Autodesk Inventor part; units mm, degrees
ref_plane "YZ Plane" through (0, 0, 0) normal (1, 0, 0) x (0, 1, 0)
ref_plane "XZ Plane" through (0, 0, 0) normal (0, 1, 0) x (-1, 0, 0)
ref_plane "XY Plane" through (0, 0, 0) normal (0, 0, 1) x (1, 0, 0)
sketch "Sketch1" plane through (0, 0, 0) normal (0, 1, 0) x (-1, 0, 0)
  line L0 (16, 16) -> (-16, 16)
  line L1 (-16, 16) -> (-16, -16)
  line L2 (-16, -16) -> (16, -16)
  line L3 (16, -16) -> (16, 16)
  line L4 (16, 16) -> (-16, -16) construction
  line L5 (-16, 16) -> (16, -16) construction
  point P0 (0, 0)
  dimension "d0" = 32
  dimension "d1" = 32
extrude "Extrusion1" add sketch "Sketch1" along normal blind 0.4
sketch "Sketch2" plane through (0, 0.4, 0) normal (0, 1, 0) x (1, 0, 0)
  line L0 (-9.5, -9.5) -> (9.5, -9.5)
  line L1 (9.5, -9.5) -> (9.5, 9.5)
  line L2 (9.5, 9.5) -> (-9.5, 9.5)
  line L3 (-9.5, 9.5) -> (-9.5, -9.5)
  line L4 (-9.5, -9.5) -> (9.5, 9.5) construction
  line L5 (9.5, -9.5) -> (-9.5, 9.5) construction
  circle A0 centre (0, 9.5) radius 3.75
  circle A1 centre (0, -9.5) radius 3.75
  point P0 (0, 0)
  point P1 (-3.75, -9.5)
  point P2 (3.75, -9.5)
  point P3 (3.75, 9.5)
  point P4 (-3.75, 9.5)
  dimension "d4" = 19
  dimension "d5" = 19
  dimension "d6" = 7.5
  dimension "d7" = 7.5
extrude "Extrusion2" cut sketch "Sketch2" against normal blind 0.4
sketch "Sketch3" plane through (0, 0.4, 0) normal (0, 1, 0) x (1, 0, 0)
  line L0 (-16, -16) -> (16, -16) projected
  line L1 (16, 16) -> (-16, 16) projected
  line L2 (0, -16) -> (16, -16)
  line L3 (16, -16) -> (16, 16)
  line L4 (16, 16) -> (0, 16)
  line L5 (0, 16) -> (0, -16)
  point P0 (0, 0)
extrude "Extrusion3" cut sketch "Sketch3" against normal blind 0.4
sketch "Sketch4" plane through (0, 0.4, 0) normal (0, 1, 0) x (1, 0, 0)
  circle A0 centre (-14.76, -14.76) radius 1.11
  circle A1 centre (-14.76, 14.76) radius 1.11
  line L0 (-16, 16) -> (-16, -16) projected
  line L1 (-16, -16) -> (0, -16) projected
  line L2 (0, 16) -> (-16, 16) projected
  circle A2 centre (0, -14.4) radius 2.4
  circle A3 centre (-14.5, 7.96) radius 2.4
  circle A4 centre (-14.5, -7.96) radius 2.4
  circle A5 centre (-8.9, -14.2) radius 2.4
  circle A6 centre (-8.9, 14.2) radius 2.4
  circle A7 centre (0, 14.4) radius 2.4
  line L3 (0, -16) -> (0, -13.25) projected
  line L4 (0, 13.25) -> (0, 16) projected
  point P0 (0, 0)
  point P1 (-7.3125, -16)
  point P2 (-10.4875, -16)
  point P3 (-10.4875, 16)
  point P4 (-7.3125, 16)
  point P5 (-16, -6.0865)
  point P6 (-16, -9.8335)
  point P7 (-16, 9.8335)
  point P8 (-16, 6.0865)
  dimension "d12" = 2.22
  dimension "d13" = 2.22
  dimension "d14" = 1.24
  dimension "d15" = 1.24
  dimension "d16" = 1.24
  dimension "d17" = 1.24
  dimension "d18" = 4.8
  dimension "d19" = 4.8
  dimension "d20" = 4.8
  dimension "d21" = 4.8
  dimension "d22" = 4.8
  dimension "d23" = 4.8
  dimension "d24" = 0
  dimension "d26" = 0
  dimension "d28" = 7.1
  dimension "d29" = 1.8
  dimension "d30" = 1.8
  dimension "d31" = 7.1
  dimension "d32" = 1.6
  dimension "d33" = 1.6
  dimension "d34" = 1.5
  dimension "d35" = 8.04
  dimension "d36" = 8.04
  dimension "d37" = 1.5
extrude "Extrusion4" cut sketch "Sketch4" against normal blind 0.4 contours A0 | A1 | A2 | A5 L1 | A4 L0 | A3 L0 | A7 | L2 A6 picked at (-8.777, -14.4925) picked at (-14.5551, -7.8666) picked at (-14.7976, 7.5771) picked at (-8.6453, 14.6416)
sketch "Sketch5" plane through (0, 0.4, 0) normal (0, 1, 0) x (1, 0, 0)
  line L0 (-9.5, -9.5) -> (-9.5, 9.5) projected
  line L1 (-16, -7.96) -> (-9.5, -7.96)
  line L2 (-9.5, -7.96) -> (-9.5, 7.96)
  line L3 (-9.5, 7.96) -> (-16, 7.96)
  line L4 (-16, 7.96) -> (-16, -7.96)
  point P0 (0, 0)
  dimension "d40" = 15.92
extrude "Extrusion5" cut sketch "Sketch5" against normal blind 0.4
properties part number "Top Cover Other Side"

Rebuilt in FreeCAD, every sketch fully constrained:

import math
import FreeCAD as App
import Part
import Sketcher

V = App.Vector


def add_polygon(sketch, points):
    """Adds a closed chain of lines whose ends are joined by coincident constraints."""
    first, n = sketch.GeometryCount, len(points)
    for a, b in zip(points, points[1:] + points[:1]):
        sketch.addGeometry(Part.LineSegment(App.Vector(*a, 0), App.Vector(*b, 0)), False)
    for i in range(n):
        sketch.addConstraint(Sketcher.Constraint("Coincident", first + i, 2, first + (i + 1) % n, 1))

doc = App.newDocument("Part")
body = doc.addObject("PartDesign::Body", "Body")
body.AllowCompound = True

# Sketch on XZ plane
sketch1 = body.newObject("Sketcher::SketchObject", "Sketch")
sketch1.AttachmentSupport = (doc.getObject("XZ_Plane"), [""])
sketch1.MapMode = "FlatFace"
add_polygon(sketch1, [(-16, -16), (-16, 16), (16, 16), (16, -16)])  # lines 0-3
sketch1.addConstraint(Sketcher.Constraint("Vertical", 0))
sketch1.addConstraint(Sketcher.Constraint("Horizontal", 1))
sketch1.addConstraint(Sketcher.Constraint("Vertical", 2))
sketch1.addConstraint(Sketcher.Constraint("Horizontal", 3))
sketch1.addConstraint(Sketcher.Constraint("Symmetric", 0, 2, 2, 2, -1, 1))
sketch1.addConstraint(Sketcher.Constraint("Equal", 3, 0))
sketch1.addConstraint(Sketcher.Constraint("DistanceX", 1, 1, 1, 2, 32.0))
pad1 = body.newObject("PartDesign::Pad", "Pad")
pad1.Profile = sketch1
pad1.Length = 0.4
pad1.Reversed = True

# Sketch on XZ plane
sketch2 = body.newObject("Sketcher::SketchObject", "Sketch001")
sketch2.AttachmentSupport = (doc.getObject("XZ_Plane"), [""])
sketch2.MapMode = "FlatFace"
sketch2.AttachmentOffset = App.Placement(V(0, 0, -0.4), App.Rotation())
sketch2.addGeometry(Part.LineSegment(V(-9.5, 9.5, 0), V(-3.8, 9.5, 0)), False)
sketch2.addGeometry(Part.ArcOfCircle(Part.Circle(V(0, 9.5, 0), V(0, 0, 1), 3.8), math.radians(0), math.radians(180)), False)
sketch2.addGeometry(Part.LineSegment(V(3.8, 9.5, 0), V(9.5, 9.5, 0)), False)
sketch2.addGeometry(Part.LineSegment(V(9.5, 9.5, 0), V(9.5, -9.5, 0)), False)
sketch2.addGeometry(Part.LineSegment(V(9.5, -9.5, 0), V(3.8, -9.5, 0)), False)
sketch2.addGeometry(Part.ArcOfCircle(Part.Circle(V(0, -9.5, 0), V(0, 0, 1), 3.8), math.radians(180), math.radians(360)), False)
sketch2.addGeometry(Part.LineSegment(V(-3.8, -9.5, 0), V(-9.5, -9.5, 0)), False)
sketch2.addGeometry(Part.LineSegment(V(-9.5, -9.5, 0), V(-9.5, 9.5, 0)), False)
sketch2.addConstraint(Sketcher.Constraint("Coincident", 0, 2, 1, 2))
sketch2.addConstraint(Sketcher.Constraint("Coincident", 1, 1, 2, 1))
sketch2.addConstraint(Sketcher.Constraint("Coincident", 2, 2, 3, 1))
sketch2.addConstraint(Sketcher.Constraint("Coincident", 3, 2, 4, 1))
sketch2.addConstraint(Sketcher.Constraint("Coincident", 4, 2, 5, 2))
sketch2.addConstraint(Sketcher.Constraint("Coincident", 5, 1, 6, 1))
sketch2.addConstraint(Sketcher.Constraint("Coincident", 6, 2, 7, 1))
sketch2.addConstraint(Sketcher.Constraint("Coincident", 7, 2, 0, 1))
sketch2.addConstraint(Sketcher.Constraint("Horizontal", 0))
sketch2.addConstraint(Sketcher.Constraint("Horizontal", 2))
sketch2.addConstraint(Sketcher.Constraint("Vertical", 3))
sketch2.addConstraint(Sketcher.Constraint("Horizontal", 4))
sketch2.addConstraint(Sketcher.Constraint("Horizontal", 6))
sketch2.addConstraint(Sketcher.Constraint("Vertical", 7))
sketch2.addConstraint(Sketcher.Constraint("Equal", 1, 5))
sketch2.addConstraint(Sketcher.Constraint("Symmetric", 1, 3, 5, 3, -1, 1))
sketch2.addConstraint(Sketcher.Constraint("Symmetric", 2, 2, 6, 2, -1, 1))
sketch2.addConstraint(Sketcher.Constraint("Symmetric", 0, 2, 1, 1, -2))
sketch2.addConstraint(Sketcher.Constraint("Horizontal", 1, 3, 0, 2))
sketch2.addConstraint(Sketcher.Constraint("Horizontal", 5, 3, 3, 2))
sketch2.addConstraint(Sketcher.Constraint("DistanceY", 3, 2, 3, 1, 19.0))
sketch2.addConstraint(Sketcher.Constraint("Radius", 1, 3.75))
sketch2.addConstraint(Sketcher.Constraint("DistanceX", 6, 2, 3, 2, 19.0))
pocket1 = body.newObject("PartDesign::Pocket", "Pocket")
pocket1.Profile = sketch2
pocket1.Length = 0.4
pocket1.Reversed = True

# Sketch on XZ plane
sketch3 = body.newObject("Sketcher::SketchObject", "Sketch002")
sketch3.AttachmentSupport = (doc.getObject("XZ_Plane"), [""])
sketch3.MapMode = "FlatFace"
sketch3.AttachmentOffset = App.Placement(V(0, 0, -0.4), App.Rotation())
add_polygon(sketch3, [(0, -16), (0, 16), (16, 16), (16, -16)])  # lines 0-3
sketch3.addConstraint(Sketcher.Constraint("Vertical", 0))
sketch3.addConstraint(Sketcher.Constraint("Horizontal", 1))
sketch3.addConstraint(Sketcher.Constraint("Vertical", 2))
sketch3.addConstraint(Sketcher.Constraint("Horizontal", 3))
sketch3.addConstraint(Sketcher.Constraint("Symmetric", 0, 2, 3, 2, -1, 1))
sketch3.addConstraint(Sketcher.Constraint("DistanceX", 1, 1, 1, 2, 16.0))
sketch3.addConstraint(Sketcher.Constraint("DistanceY", 0, 1, 0, 2, 32.0))
pocket2 = body.newObject("PartDesign::Pocket", "Pocket001")
pocket2.Profile = sketch3
pocket2.Length = 0.4
pocket2.Reversed = True

# Sketch on XZ plane
sketch4 = body.newObject("Sketcher::SketchObject", "Sketch003")
sketch4.AttachmentSupport = (doc.getObject("XZ_Plane"), [""])
sketch4.MapMode = "FlatFace"
sketch4.AttachmentOffset = App.Placement(V(0, 0, -0.4), App.Rotation())
sketch4.addGeometry(Part.Circle(V(-14.8, 14.8, 0), V(0, 0, 1), 1.1), False)
sketch4.addGeometry(Part.Circle(V(-14.8, -14.8, 0), V(0, 0, 1), 1.1), False)
sketch4.addGeometry(Part.Circle(V(0, 14.4, 0), V(0, 0, 1), 2.4), False)
sketch4.addGeometry(Part.ArcOfCircle(Part.Circle(V(-8.9, 14.2, 0), V(0, 0, 1), 2.4), math.radians(131), math.radians(409)), False)
sketch4.addGeometry(Part.LineSegment(V(-10.5, 16, 0), V(-7.3, 16, 0)), False)
sketch4.addGeometry(Part.ArcOfCircle(Part.Circle(V(-14.5, 8, 0), V(0, 0, 1), 2.4), math.radians(-129), math.radians(129)), False)
sketch4.addGeometry(Part.LineSegment(V(-16, 6.1, 0), V(-16, 9.8, 0)), False)
sketch4.addGeometry(Part.ArcOfCircle(Part.Circle(V(-14.5, -8, 0), V(0, 0, 1), 2.4), math.radians(-129), math.radians(129)), False)
sketch4.addGeometry(Part.LineSegment(V(-16, -9.8, 0), V(-16, -6.1, 0)), False)
sketch4.addGeometry(Part.Circle(V(0, -14.4, 0), V(0, 0, 1), 2.4), False)
sketch4.addGeometry(Part.LineSegment(V(-7.3, -16, 0), V(-10.5, -16, 0)), False)
sketch4.addGeometry(Part.ArcOfCircle(Part.Circle(V(-8.9, -14.2, 0), V(0, 0, 1), 2.4), math.radians(-49), math.radians(229)), False)
sketch4.addConstraint(Sketcher.Constraint("Coincident", 3, 1, 4, 1))
sketch4.addConstraint(Sketcher.Constraint("Coincident", 4, 2, 3, 2))
sketch4.addConstraint(Sketcher.Constraint("Coincident", 5, 1, 6, 1))
sketch4.addConstraint(Sketcher.Constraint("Coincident", 6, 2, 5, 2))
sketch4.addConstraint(Sketcher.Constraint("Coincident", 7, 1, 8, 1))
sketch4.addConstraint(Sketcher.Constraint("Coincident", 8, 2, 7, 2))
sketch4.addConstraint(Sketcher.Constraint("Coincident", 10, 1, 11, 1))
sketch4.addConstraint(Sketcher.Constraint("Coincident", 11, 2, 10, 2))
sketch4.addConstraint(Sketcher.Constraint("Horizontal", 4))
sketch4.addConstraint(Sketcher.Constraint("Vertical", 6))
sketch4.addConstraint(Sketcher.Constraint("Vertical", 8))
sketch4.addConstraint(Sketcher.Constraint("Horizontal", 10))
sketch4.addConstraint(Sketcher.Constraint("Equal", 0, 1))
sketch4.addConstraint(Sketcher.Constraint("Equal", 2, 3))
sketch4.addConstraint(Sketcher.Constraint("Equal", 3, 5))
sketch4.addConstraint(Sketcher.Constraint("Equal", 5, 7))
sketch4.addConstraint(Sketcher.Constraint("Equal", 7, 9))
sketch4.addConstraint(Sketcher.Constraint("Equal", 9, 11))
sketch4.addConstraint(Sketcher.Constraint("Symmetric", 2, 3, 9, 3, -1, 1))
sketch4.addConstraint(Sketcher.Constraint("Symmetric", 0, 3, 1, 3, -1))
sketch4.addConstraint(Sketcher.Constraint("Symmetric", 5, 3, 7, 3, -1))
sketch4.addConstraint(Sketcher.Constraint("Symmetric", 3, 3, 11, 3, -1))
sketch4.addConstraint(Sketcher.Constraint("PointOnObject", 2, 3, -2))
sketch4.addConstraint(Sketcher.Constraint("Vertical", 6, 2, 7, 1))
sketch4.addConstraint(Sketcher.Constraint("Vertical", 4, 2, 10, 1))
sketch4.addConstraint(Sketcher.Constraint("Diameter", 2, 4.8))
sketch4.addConstraint(Sketcher.Constraint("Diameter", 0, 2.22))
sketch4.addConstraint(Sketcher.Constraint("DistanceY", 3, 3, 3, 1, 1.8))
sketch4.addConstraint(Sketcher.Constraint("DistanceY", 2, 3, 3, 1, 1.6))
sketch4.addConstraint(Sketcher.Constraint("DistanceX", 5, 1, 5, 3, 1.5))
sketch4.addConstraint(Sketcher.Constraint("DistanceX", 5, 1, 3, 3, 7.1))
sketch4.addConstraint(Sketcher.Constraint("DistanceY", 0, 3, 3, 1, 1.24))
sketch4.addConstraint(Sketcher.Constraint("DistanceY", 5, 3, 3, 1, 8.04))
sketch4.addConstraint(Sketcher.Constraint("DistanceX", 5, 1, 0, 3, 1.24))
sketch4.addConstraint(Sketcher.Constraint("DistanceY", -1, 1, 3, 1, 16.0))
sketch4.addConstraint(Sketcher.Constraint("DistanceX", 5, 1, -1, 1, 16.0))
pocket3 = body.newObject("PartDesign::Pocket", "Pocket002")
pocket3.Profile = sketch4
pocket3.Length = 0.4
pocket3.Reversed = True

# Sketch on XZ plane
sketch5 = body.newObject("Sketcher::SketchObject", "Sketch004")
sketch5.AttachmentSupport = (doc.getObject("XZ_Plane"), [""])
sketch5.MapMode = "FlatFace"
sketch5.AttachmentOffset = App.Placement(V(0, 0, -0.4), App.Rotation())
add_polygon(sketch5, [(-16, 8), (-10, 8), (-10, -8), (-16, -8)])  # lines 0-3
sketch5.addConstraint(Sketcher.Constraint("Horizontal", 0))
sketch5.addConstraint(Sketcher.Constraint("Vertical", 1))
sketch5.addConstraint(Sketcher.Constraint("Horizontal", 2))
sketch5.addConstraint(Sketcher.Constraint("Vertical", 3))
sketch5.addConstraint(Sketcher.Constraint("DistanceY", 1, 2, 1, 1, 15.92))
sketch5.addConstraint(Sketcher.Constraint("DistanceX", 0, 1, 0, 2, 6.5))
sketch5.addConstraint(Sketcher.Constraint("DistanceX", 2, 2, -1, 1, 16.0))
sketch5.addConstraint(Sketcher.Constraint("DistanceY", -1, 1, 0, 2, 7.96))
pocket4 = body.newObject("PartDesign::Pocket", "Pocket003")
pocket4.Profile = sketch5
pocket4.Length = 0.4
pocket4.Reversed = True

doc.recompute()
